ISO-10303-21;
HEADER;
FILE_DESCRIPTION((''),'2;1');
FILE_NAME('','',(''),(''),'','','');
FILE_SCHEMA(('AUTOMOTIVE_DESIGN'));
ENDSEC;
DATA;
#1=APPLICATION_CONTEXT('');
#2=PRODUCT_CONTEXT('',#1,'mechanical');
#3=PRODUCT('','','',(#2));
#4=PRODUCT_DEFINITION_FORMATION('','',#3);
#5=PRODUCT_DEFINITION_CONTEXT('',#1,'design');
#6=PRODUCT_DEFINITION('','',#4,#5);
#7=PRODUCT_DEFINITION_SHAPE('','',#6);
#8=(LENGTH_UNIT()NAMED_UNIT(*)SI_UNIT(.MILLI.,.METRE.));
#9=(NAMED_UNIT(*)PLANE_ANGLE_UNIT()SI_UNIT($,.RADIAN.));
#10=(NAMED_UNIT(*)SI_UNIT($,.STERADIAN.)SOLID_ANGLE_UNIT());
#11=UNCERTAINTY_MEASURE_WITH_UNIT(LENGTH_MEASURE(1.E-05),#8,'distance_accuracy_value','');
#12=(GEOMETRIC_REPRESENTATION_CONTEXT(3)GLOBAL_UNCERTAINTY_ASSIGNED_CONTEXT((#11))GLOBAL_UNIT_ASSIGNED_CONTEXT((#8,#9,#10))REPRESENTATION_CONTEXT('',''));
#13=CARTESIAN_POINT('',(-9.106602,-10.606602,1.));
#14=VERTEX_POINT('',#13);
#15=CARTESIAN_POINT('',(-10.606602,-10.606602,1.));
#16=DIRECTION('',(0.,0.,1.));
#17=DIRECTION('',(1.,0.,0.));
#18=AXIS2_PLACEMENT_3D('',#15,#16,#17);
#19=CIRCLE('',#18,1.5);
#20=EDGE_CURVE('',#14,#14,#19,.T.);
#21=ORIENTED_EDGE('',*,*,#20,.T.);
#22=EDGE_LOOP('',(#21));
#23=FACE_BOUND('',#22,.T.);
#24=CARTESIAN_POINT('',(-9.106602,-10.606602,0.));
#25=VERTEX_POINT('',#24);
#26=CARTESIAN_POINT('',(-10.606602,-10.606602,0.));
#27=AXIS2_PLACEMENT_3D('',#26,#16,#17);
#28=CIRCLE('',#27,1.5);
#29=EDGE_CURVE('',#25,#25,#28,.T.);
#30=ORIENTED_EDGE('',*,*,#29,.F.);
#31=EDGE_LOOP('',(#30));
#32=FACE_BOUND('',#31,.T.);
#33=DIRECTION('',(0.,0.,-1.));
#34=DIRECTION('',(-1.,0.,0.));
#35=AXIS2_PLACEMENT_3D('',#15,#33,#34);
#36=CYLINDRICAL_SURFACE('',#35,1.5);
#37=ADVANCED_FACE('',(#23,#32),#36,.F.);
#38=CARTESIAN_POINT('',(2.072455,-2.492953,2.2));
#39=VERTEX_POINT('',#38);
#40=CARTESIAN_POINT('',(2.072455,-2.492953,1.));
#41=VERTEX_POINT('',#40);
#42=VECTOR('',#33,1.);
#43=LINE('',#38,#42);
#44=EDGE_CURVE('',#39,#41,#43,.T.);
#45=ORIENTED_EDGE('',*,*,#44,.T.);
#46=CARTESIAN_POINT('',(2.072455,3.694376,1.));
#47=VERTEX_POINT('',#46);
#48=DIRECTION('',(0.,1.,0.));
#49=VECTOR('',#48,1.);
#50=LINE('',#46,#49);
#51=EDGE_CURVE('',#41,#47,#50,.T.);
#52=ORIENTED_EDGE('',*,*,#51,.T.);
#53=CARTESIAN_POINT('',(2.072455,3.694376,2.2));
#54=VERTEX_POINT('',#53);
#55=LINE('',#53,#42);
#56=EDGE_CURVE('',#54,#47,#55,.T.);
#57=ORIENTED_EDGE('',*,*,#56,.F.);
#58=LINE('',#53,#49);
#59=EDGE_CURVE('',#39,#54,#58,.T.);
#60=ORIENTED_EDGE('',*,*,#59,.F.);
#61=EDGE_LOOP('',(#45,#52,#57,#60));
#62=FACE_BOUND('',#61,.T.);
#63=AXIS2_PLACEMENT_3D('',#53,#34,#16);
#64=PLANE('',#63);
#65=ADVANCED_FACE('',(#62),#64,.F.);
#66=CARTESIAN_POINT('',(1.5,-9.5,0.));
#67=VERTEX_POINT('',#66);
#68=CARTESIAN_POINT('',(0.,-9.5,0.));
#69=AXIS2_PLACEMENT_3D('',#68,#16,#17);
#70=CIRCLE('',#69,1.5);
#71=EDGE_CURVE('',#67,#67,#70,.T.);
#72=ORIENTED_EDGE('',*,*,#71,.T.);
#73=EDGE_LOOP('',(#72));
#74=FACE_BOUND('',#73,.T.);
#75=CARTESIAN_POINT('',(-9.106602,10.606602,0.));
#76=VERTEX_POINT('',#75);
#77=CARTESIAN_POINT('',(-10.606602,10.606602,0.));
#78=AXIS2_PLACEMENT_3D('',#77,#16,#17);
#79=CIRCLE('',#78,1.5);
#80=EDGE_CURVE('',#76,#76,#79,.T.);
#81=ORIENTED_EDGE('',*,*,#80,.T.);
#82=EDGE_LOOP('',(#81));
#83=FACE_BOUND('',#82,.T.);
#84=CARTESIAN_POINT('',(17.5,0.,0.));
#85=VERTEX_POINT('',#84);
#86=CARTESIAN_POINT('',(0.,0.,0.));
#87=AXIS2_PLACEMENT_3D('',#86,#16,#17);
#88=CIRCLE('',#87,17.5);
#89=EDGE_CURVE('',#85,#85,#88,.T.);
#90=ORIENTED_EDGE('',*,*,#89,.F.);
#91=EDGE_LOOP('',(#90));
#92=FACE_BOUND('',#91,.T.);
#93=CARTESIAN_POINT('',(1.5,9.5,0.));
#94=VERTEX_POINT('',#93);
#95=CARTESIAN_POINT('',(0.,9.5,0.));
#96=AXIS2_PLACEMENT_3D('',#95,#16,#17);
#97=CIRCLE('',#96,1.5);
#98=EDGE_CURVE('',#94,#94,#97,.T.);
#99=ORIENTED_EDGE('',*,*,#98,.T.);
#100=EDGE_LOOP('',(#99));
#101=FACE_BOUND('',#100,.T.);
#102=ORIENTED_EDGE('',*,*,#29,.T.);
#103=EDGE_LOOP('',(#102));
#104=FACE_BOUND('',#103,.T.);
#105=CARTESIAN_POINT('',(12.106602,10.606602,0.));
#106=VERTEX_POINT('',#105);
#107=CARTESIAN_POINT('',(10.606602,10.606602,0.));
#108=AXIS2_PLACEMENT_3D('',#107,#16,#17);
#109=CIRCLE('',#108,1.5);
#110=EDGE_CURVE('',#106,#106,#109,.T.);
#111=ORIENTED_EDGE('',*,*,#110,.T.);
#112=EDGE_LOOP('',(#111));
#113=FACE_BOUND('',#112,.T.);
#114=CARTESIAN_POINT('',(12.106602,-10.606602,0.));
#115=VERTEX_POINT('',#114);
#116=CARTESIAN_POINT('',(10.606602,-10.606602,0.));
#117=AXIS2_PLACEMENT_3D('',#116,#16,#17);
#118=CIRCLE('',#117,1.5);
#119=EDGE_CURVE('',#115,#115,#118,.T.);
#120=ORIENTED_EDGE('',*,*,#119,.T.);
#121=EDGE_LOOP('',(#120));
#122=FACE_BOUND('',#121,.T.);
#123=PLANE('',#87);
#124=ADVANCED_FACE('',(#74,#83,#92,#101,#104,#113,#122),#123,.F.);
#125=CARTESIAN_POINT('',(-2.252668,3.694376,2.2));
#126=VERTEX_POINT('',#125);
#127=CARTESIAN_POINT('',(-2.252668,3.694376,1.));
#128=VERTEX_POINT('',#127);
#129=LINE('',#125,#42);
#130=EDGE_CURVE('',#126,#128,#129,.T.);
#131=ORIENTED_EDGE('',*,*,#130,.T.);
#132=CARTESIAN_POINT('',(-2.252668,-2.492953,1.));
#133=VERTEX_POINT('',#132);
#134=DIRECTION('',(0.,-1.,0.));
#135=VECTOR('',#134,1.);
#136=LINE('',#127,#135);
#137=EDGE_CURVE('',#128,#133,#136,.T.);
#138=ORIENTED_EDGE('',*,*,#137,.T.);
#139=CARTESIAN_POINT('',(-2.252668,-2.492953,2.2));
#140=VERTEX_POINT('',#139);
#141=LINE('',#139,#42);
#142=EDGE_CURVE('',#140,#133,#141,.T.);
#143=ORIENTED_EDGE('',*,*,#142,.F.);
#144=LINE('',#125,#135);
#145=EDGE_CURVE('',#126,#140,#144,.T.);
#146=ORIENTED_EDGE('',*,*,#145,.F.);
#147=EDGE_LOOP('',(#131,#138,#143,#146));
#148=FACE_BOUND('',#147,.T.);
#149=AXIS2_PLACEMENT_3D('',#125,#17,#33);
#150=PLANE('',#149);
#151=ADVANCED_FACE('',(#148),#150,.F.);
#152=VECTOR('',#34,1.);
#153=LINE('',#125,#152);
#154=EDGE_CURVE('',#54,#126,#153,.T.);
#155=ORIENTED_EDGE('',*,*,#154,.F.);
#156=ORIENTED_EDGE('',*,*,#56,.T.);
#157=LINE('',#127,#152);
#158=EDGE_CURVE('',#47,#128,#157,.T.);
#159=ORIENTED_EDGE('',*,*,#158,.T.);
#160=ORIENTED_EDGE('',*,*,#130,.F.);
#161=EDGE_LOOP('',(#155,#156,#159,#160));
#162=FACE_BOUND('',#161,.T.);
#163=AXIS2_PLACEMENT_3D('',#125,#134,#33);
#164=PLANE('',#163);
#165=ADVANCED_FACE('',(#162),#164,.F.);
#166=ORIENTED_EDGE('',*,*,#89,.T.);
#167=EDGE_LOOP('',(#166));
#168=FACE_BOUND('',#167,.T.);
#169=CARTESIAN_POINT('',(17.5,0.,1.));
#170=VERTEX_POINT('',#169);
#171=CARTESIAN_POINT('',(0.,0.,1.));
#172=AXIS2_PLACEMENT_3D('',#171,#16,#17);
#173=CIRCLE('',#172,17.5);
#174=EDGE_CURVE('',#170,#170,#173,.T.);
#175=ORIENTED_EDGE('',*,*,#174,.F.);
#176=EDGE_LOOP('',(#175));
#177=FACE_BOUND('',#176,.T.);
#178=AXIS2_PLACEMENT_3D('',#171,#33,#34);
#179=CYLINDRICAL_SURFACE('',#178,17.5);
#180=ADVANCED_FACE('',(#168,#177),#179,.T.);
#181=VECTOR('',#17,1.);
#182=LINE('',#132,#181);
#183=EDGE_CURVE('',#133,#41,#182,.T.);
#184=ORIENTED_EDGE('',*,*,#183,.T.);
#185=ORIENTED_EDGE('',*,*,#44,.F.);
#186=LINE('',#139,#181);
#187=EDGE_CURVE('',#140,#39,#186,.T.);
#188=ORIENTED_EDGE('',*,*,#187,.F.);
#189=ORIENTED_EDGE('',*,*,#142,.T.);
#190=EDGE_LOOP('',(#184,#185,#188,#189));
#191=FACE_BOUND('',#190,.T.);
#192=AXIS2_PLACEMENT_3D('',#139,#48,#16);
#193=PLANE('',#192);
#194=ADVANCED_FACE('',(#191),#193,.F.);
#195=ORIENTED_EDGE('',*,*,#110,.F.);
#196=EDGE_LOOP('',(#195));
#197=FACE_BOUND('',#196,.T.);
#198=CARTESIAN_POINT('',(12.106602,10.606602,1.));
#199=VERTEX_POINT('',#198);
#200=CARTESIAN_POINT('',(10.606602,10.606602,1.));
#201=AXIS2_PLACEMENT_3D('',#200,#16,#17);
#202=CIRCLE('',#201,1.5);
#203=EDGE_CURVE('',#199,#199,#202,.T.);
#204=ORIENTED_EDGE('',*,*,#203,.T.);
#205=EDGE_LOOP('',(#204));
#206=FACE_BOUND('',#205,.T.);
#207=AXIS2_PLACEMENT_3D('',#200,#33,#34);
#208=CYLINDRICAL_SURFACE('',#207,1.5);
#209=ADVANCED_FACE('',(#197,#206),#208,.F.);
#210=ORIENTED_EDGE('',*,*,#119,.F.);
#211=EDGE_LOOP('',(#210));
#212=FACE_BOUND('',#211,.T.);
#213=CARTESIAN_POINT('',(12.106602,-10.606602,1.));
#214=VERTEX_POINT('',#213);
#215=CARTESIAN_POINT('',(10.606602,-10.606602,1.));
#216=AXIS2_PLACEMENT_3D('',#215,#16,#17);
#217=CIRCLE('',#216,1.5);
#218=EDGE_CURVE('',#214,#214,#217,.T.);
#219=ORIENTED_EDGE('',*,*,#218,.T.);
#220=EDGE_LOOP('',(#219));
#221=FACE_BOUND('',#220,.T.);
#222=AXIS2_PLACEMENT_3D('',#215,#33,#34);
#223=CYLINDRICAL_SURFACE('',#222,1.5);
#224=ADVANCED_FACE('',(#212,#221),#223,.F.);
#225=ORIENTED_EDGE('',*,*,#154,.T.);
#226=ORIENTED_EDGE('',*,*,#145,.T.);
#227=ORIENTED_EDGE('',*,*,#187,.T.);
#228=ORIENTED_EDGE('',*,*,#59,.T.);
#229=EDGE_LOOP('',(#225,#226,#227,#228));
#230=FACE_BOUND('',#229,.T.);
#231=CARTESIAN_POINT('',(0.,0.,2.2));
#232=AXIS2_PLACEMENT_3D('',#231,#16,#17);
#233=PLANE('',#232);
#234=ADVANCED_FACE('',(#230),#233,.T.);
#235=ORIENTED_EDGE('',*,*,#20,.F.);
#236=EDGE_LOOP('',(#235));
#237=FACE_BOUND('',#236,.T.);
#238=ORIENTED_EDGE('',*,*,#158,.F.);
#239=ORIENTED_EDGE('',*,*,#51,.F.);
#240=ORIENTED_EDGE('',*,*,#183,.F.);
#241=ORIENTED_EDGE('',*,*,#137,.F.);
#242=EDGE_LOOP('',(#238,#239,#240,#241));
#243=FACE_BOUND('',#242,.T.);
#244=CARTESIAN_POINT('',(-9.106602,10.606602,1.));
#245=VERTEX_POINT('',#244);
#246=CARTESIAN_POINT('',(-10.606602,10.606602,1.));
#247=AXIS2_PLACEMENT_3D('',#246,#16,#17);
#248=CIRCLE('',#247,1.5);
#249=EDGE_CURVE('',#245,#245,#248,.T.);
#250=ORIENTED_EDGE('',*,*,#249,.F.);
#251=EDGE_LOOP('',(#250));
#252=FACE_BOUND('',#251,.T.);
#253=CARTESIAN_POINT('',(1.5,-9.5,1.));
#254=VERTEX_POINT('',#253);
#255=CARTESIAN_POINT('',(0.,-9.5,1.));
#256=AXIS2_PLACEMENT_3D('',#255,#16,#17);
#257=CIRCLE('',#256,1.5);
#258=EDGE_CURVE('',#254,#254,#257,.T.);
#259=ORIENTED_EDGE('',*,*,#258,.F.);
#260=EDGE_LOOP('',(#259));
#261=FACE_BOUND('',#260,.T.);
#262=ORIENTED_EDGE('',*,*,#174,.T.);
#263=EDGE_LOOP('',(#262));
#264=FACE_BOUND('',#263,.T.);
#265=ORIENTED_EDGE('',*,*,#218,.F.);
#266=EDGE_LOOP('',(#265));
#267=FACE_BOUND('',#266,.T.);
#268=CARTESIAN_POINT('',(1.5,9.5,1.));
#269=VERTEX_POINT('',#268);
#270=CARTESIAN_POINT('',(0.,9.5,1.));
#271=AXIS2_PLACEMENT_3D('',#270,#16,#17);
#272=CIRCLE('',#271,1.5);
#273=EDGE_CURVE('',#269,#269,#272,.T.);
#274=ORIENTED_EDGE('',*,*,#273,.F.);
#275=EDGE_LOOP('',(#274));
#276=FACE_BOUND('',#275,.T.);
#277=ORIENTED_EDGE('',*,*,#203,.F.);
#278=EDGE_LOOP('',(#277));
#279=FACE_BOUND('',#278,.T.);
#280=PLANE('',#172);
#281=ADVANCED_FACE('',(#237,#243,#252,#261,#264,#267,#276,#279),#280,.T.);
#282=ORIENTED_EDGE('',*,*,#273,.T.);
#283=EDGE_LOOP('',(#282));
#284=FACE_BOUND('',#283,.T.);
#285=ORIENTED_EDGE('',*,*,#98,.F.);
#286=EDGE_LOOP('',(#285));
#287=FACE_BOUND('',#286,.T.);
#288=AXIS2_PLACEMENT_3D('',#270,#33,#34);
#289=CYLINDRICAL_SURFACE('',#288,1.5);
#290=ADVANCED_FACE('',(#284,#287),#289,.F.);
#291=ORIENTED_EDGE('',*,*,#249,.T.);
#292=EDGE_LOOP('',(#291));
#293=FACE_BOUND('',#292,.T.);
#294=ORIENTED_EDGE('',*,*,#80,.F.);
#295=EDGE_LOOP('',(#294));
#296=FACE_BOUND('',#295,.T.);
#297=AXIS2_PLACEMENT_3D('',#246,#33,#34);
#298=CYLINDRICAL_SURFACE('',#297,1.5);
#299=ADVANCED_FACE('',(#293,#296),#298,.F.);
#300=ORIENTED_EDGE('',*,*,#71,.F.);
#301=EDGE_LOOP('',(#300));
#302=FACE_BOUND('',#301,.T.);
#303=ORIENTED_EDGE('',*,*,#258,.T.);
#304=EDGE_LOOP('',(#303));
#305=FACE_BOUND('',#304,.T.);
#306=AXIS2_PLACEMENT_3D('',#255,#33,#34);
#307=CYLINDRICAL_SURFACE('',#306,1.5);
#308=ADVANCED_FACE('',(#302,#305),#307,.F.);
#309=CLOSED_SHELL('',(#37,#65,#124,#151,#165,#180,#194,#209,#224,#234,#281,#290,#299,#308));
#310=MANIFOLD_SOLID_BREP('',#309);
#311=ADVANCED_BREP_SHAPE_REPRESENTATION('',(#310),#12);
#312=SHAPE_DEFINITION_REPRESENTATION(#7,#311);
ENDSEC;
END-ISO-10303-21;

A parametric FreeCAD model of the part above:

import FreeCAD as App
import Part
import Sketcher
from FreeCAD import Vector
Q = App.Units.Quantity


def add_polygon(sketch, points):
    """Adds a closed chain of lines whose ends are joined by coincident constraints."""
    first, n = sketch.GeometryCount, len(points)
    for a, b in zip(points, points[1:] + points[:1]):
        sketch.addGeometry(Part.LineSegment(App.Vector(*a, 0), App.Vector(*b, 0)), False)
    for i in range(n):
        sketch.addConstraint(Sketcher.Constraint("Coincident", first + i, 2, first + (i + 1) % n, 1))

doc = App.newDocument("Part")
body = doc.addObject("PartDesign::Body", "Body")

# Sketch on XY plane
sketch1 = doc.addObject("Sketcher::SketchObject", "Sketch")
body.addObject(sketch1)
sketch1.AttachmentSupport = (doc.XY_Plane, [""])
sketch1.MapMode = "FlatFace"
sketch1.addGeometry([
    Part.Circle(Vector(0, 0, 0), Vector(0, 0, 1), 17.5),  # 0
    Part.Circle(Vector(-10.6, -10.6, 0), Vector(0, 0, 1), 1.5),  # 1
    Part.Circle(Vector(0, -9.5, 0), Vector(0, 0, 1), 1.5),  # 2
    Part.Circle(Vector(10.6, -10.6, 0), Vector(0, 0, 1), 1.5),  # 3
    Part.Circle(Vector(-10.6, 10.6, 0), Vector(0, 0, 1), 1.5),  # 4
    Part.Circle(Vector(0, 9.5, 0), Vector(0, 0, 1), 1.5),  # 5
    Part.Circle(Vector(10.6, 10.6, 0), Vector(0, 0, 1), 1.5),  # 6
], False)
sketch1.addConstraint([
    Sketcher.Constraint("Coincident", 0, 3, -1, 1),
    Sketcher.Constraint("Equal", 1, 2),
    Sketcher.Constraint("Equal", 2, 3),
    Sketcher.Constraint("Equal", 3, 4),
    Sketcher.Constraint("Equal", 4, 5),
    Sketcher.Constraint("Equal", 5, 6),
    Sketcher.Constraint("Symmetric", 3, 3, 4, 3, -1, 1),
    Sketcher.Constraint("Symmetric", 2, 3, 5, 3, -1, 1),
    Sketcher.Constraint("Symmetric", 1, 3, 6, 3, -1, 1),
    Sketcher.Constraint("Symmetric", 1, 3, 3, 3, -2),
    Sketcher.Constraint("PointOnObject", 2, 3, -2),
    Sketcher.Constraint("Diameter", 0, Q("35 mm")),
    Sketcher.Constraint("Diameter", 1, Q("3 mm")),
    Sketcher.Constraint("DistanceY", 2, 3, 5, 3, Q("19 mm")),
    Sketcher.Constraint("DistanceX", 1, 3, -1, 1, Q("10.606602 mm")),
    Sketcher.Constraint("DistanceY", 1, 3, -1, 1, Q("10.606602 mm")),
])
pad1 = doc.addObject("PartDesign::Pad", "Pad")
body.addObject(pad1)
pad1.Profile = sketch1
pad1.Length = 1

# Sketch on XY plane
sketch2 = doc.addObject("Sketcher::SketchObject", "Sketch001")
body.addObject(sketch2)
sketch2.AttachmentSupport = (doc.XY_Plane, [""])
sketch2.MapMode = "FlatFace"
sketch2.AttachmentOffset = App.Placement(Vector(0, 0, 1), App.Rotation())
add_polygon(sketch2, [(-2.3, 3.7), (-2.3, -2.5), (2.1, -2.5), (2.1, 3.7)])  # lines 0-3
sketch2.addConstraint([
    Sketcher.Constraint("Vertical", 0),
    Sketcher.Constraint("Horizontal", 1),
    Sketcher.Constraint("Vertical", 2),
    Sketcher.Constraint("Horizontal", 3),
    Sketcher.Constraint("DistanceY", 0, 2, 0, 1, Q("6.187329 mm")),
    Sketcher.Constraint("DistanceX", 1, 1, 1, 2, Q("4.325123 mm")),
    Sketcher.Constraint("DistanceX", 0, 2, -1, 1, Q("2.252668 mm")),
    Sketcher.Constraint("DistanceY", 0, 2, -1, 1, Q("2.492953 mm")),
])
pad2 = doc.addObject("PartDesign::Pad", "Pad001")
body.addObject(pad2)
pad2.Profile = sketch2
pad2.Length = 1.2

doc.recompute()
